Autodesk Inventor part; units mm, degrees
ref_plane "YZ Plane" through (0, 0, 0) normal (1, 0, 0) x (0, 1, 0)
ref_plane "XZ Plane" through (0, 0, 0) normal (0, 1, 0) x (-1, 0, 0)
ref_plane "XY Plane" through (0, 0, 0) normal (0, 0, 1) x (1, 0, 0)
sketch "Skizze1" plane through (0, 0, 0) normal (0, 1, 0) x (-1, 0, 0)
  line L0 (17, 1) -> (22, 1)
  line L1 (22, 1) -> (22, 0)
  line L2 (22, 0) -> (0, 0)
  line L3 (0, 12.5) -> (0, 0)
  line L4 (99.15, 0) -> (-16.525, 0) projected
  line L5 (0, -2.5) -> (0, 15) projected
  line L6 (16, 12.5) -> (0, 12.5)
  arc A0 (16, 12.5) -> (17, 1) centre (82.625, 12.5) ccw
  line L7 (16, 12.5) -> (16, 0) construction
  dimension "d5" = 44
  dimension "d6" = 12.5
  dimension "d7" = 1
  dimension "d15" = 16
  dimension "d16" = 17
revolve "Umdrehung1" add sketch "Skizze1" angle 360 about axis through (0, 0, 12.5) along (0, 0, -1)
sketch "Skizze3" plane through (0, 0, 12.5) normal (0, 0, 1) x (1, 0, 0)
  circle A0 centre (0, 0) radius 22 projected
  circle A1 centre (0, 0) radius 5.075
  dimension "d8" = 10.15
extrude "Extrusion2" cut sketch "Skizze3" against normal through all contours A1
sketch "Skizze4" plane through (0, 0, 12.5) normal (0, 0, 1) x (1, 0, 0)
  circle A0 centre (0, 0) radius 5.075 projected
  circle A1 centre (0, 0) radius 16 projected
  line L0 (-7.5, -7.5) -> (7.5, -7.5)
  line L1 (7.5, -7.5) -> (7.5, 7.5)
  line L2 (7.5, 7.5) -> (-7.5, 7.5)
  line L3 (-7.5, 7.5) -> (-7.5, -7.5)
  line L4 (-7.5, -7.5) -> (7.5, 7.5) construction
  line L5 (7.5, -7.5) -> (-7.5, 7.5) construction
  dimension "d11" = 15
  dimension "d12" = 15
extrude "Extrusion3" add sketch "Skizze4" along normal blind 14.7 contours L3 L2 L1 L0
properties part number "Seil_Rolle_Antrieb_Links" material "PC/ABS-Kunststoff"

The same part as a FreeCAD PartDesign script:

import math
import FreeCAD as App
import Part
import Sketcher
from FreeCAD import Vector

doc = App.newDocument("Part")
body = doc.addObject("PartDesign::Body", "Body")

sketch1 = body.newObject("Sketcher::SketchObject", "Sketch")
sketch1.AttachmentSupport = (doc.getObject("XZ_Plane"), [""])
sketch1.MapMode = "FlatFace"
sketch1.addGeometry(Part.LineSegment(Vector(-22, 1, 0), Vector(-17, 1, 0)), False)
sketch1.addGeometry(Part.ArcOfCircle(Part.Circle(Vector(-82.6, 12.5, 0), Vector(0, 0, 1), 66.6), math.radians(-9.94), math.radians(0)), False)
sketch1.addGeometry(Part.LineSegment(Vector(-16, 12.5, 0), Vector(0, 12.5, 0)), False)
sketch1.addGeometry(Part.LineSegment(Vector(0, 12.5, 0), Vector(0, 0, 0)), False)
sketch1.addGeometry(Part.LineSegment(Vector(0, 0, 0), Vector(-22, 0, 0)), False)
sketch1.addGeometry(Part.LineSegment(Vector(-22, 0, 0), Vector(-22, 1, 0)), False)
sketch1.addConstraint(Sketcher.Constraint("Coincident", 0, 2, 1, 1))
sketch1.addConstraint(Sketcher.Constraint("Coincident", 1, 2, 2, 1))
sketch1.addConstraint(Sketcher.Constraint("Coincident", 2, 2, 3, 1))
sketch1.addConstraint(Sketcher.Constraint("Coincident", 3, 2, 4, 1))
sketch1.addConstraint(Sketcher.Constraint("Coincident", 4, 2, 5, 1))
sketch1.addConstraint(Sketcher.Constraint("Coincident", 5, 2, 0, 1))
sketch1.addConstraint(Sketcher.Constraint("Horizontal", 0))
sketch1.addConstraint(Sketcher.Constraint("Horizontal", 2))
sketch1.addConstraint(Sketcher.Constraint("Vertical", 3))
sketch1.addConstraint(Sketcher.Constraint("Horizontal", 4))
sketch1.addConstraint(Sketcher.Constraint("Vertical", 5))
sketch1.addConstraint(Sketcher.Constraint("Coincident", 3, 2, -1, 1))
sketch1.addConstraint(Sketcher.Constraint("DistanceX", 2, 1, 2, 2, 16.0))
sketch1.addConstraint(Sketcher.Constraint("DistanceY", 5, 1, 5, 2, 1.0))
sketch1.addConstraint(Sketcher.Constraint("DistanceY", 3, 2, 3, 1, 12.5))
sketch1.addConstraint(Sketcher.Constraint("DistanceX", 0, 2, -1, 1, 17.0))
sketch1.addConstraint(Sketcher.Constraint("DistanceY", -1, 1, 1, 3, 12.5))
sketch1.addConstraint(Sketcher.Constraint("DistanceX", 0, 1, 0, 2, 5.0))
revolution = body.newObject("PartDesign::Revolution", "Revolution")
revolution.Profile = sketch1
revolution.ReferenceAxis = (sketch1, ["V_Axis"])
revolution.Angle = 360

sketch2 = body.newObject("Sketcher::SketchObject", "Sketch001")
sketch2.AttachmentSupport = (doc.getObject("XY_Plane"), [""])
sketch2.MapMode = "FlatFace"
sketch2.AttachmentOffset = App.Placement(Vector(0, 0, 12.5), App.Rotation())
sketch2.addGeometry(Part.Circle(Vector(0, 0, 0), Vector(0, 0, 1), 5), False)
sketch2.addConstraint(Sketcher.Constraint("Coincident", 0, 3, -1, 1))
sketch2.addConstraint(Sketcher.Constraint("Diameter", 0, 10.15))
pocket1 = body.newObject("PartDesign::Pocket", "Pocket")
pocket1.Profile = sketch2
pocket1.Type = "ThroughAll"

sketch3 = body.newObject("Sketcher::SketchObject", "Sketch002")
sketch3.AttachmentSupport = (doc.getObject("XY_Plane"), [""])
sketch3.MapMode = "FlatFace"
sketch3.AttachmentOffset = App.Placement(Vector(0, 0, 12.5), App.Rotation())
sketch3.addGeometry(Part.LineSegment(Vector(-8, 8, 0), Vector(-8, -8, 0)), False)
sketch3.addGeometry(Part.LineSegment(Vector(-8, -8, 0), Vector(8, -8, 0)), False)
sketch3.addGeometry(Part.LineSegment(Vector(8, -8, 0), Vector(8, 8, 0)), False)
sketch3.addGeometry(Part.LineSegment(Vector(8, 8, 0), Vector(-8, 8, 0)), False)
sketch3.addGeometry(Part.Circle(Vector(0, 0, 0), Vector(0, 0, 1), 5), False)
sketch3.addConstraint(Sketcher.Constraint("Coincident", 0, 2, 1, 1))
sketch3.addConstraint(Sketcher.Constraint("Coincident", 1, 2, 2, 1))
sketch3.addConstraint(Sketcher.Constraint("Coincident", 2, 2, 3, 1))
sketch3.addConstraint(Sketcher.Constraint("Coincident", 3, 2, 0, 1))
sketch3.addConstraint(Sketcher.Constraint("Vertical", 0))
sketch3.addConstraint(Sketcher.Constraint("Horizontal", 1))
sketch3.addConstraint(Sketcher.Constraint("Vertical", 2))
sketch3.addConstraint(Sketcher.Constraint("Horizontal", 3))
sketch3.addConstraint(Sketcher.Constraint("Coincident", 4, 3, -1, 1))
sketch3.addConstraint(Sketcher.Constraint("Symmetric", 0, 2, 2, 2, -1, 1))
sketch3.addConstraint(Sketcher.Constraint("Equal", 3, 0))
sketch3.addConstraint(Sketcher.Constraint("DistanceX", 1, 1, 1, 2, 15.0))
sketch3.addConstraint(Sketcher.Constraint("Diameter", 4, 10.15))
pad1 = body.newObject("PartDesign::Pad", "Pad")
pad1.Profile = sketch3
pad1.Length = 14.7

doc.recompute()
